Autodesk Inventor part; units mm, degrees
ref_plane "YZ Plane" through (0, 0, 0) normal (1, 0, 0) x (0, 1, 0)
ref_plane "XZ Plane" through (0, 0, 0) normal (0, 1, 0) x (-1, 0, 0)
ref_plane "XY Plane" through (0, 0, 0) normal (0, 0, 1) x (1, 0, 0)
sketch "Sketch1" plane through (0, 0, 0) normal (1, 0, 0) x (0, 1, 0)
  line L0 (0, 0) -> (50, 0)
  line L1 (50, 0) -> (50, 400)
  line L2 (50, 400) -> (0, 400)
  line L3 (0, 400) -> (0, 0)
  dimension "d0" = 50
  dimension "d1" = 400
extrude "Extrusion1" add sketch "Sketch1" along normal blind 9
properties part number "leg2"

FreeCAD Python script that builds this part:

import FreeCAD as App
import Part
import Sketcher

V = App.Vector
Q = App.Units.Quantity


def add_polygon(sketch, points):
    """Adds a closed chain of lines whose ends are joined by coincident constraints."""
    first, n = sketch.GeometryCount, len(points)
    for a, b in zip(points, points[1:] + points[:1]):
        sketch.addGeometry(Part.LineSegment(App.Vector(*a, 0), App.Vector(*b, 0)), False)
    for i in range(n):
        sketch.addConstraint(Sketcher.Constraint("Coincident", first + i, 2, first + (i + 1) % n, 1))

doc = App.newDocument("Part")
body = doc.addObject("PartDesign::Body", "Body")

# Sketch on YZ plane
sketch1 = body.newObject("Sketcher::SketchObject", "Sketch")
sketch1.AttachmentSupport = (doc.getObject("YZ_Plane"), [""])
sketch1.MapMode = "FlatFace"
add_polygon(sketch1, [(0, 400), (0, 0), (50, 0), (50, 400)])  # lines 0-3
sketch1.addConstraint(Sketcher.Constraint("Vertical", 0))
sketch1.addConstraint(Sketcher.Constraint("Horizontal", 1))
sketch1.addConstraint(Sketcher.Constraint("Vertical", 2))
sketch1.addConstraint(Sketcher.Constraint("Horizontal", 3))
sketch1.addConstraint(Sketcher.Constraint("Coincident", 0, 2, -1, 1))
sketch1.addConstraint(Sketcher.Constraint("DistanceX", 1, 1, 1, 2, Q("50 mm")))
sketch1.addConstraint(Sketcher.Constraint("DistanceY", 0, 2, 0, 1, Q("400 mm")))
pad1 = body.newObject("PartDesign::Pad", "Pad")
pad1.Profile = sketch1
pad1.Length = 9

doc.recompute()
